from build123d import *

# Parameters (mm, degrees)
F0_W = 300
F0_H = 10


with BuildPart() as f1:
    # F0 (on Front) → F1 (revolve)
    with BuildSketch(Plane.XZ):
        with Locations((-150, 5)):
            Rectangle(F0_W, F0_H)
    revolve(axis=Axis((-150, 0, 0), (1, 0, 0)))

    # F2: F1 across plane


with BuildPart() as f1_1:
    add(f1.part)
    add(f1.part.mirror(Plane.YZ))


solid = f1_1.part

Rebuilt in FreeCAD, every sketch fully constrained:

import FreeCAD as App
import Part
import Sketcher
Q = App.Units.Quantity

doc = App.newDocument("Part")
body = doc.addObject("PartDesign::Body", "Body")

sketch1 = body.newObject("Sketcher::SketchObject", "Sketch")
sketch1.AttachmentSupport = (doc.getObject("XZ_Plane"), [""])
sketch1.MapMode = "FlatFace"
sketch1.addGeometry(Part.LineSegment(App.Vector(-300, 10, 0), App.Vector(-300, 0, 0)), False)
sketch1.addGeometry(Part.LineSegment(App.Vector(-300, 0, 0), App.Vector(0, 0, 0)), False)
sketch1.addGeometry(Part.LineSegment(App.Vector(0, 0, 0), App.Vector(0, 10, 0)), False)
sketch1.addGeometry(Part.LineSegment(App.Vector(0, 10, 0), App.Vector(-300, 10, 0)), False)
sketch1.addConstraint(Sketcher.Constraint("Coincident", 0, 2, 1, 1))
sketch1.addConstraint(Sketcher.Constraint("Coincident", 1, 2, 2, 1))
sketch1.addConstraint(Sketcher.Constraint("Coincident", 2, 2, 3, 1))
sketch1.addConstraint(Sketcher.Constraint("Coincident", 3, 2, 0, 1))
sketch1.addConstraint(Sketcher.Constraint("Vertical", 0))
sketch1.addConstraint(Sketcher.Constraint("Horizontal", 1))
sketch1.addConstraint(Sketcher.Constraint("Vertical", 2))
sketch1.addConstraint(Sketcher.Constraint("Horizontal", 3))
sketch1.addConstraint(Sketcher.Constraint("Coincident", 1, 2, -1, 1))
sketch1.addConstraint(Sketcher.Constraint("DistanceX", 1, 1, 1, 2, Q("300 mm")))
sketch1.addConstraint(Sketcher.Constraint("DistanceY", 0, 2, 0, 1, Q("10 mm")))
revolution = body.newObject("PartDesign::Revolution", "Revolution")
revolution.Profile = sketch1
revolution.ReferenceAxis = (sketch1, ["H_Axis"])
revolution.Angle = 360
body2 = doc.addObject("PartDesign::Body", "Body001")
doc.recompute()

body2.BaseFeature = body
doc.recompute()

mirroring = doc.addObject("Part::Mirroring", "Mirroring")
mirroring.Source = body
mirroring.Base = App.Vector(0, 0, 0)
mirroring.Normal = App.Vector(1, 0, 0)
body3 = doc.addObject("PartDesign::Body", "Body002")
body3.BaseFeature = mirroring
boolean = body2.newObject("PartDesign::Boolean", "Boolean")
boolean.Type = "Fuse"
boolean.addObjects([body3])
doc.recompute()
mirroring.Visibility = False

doc.recompute()
